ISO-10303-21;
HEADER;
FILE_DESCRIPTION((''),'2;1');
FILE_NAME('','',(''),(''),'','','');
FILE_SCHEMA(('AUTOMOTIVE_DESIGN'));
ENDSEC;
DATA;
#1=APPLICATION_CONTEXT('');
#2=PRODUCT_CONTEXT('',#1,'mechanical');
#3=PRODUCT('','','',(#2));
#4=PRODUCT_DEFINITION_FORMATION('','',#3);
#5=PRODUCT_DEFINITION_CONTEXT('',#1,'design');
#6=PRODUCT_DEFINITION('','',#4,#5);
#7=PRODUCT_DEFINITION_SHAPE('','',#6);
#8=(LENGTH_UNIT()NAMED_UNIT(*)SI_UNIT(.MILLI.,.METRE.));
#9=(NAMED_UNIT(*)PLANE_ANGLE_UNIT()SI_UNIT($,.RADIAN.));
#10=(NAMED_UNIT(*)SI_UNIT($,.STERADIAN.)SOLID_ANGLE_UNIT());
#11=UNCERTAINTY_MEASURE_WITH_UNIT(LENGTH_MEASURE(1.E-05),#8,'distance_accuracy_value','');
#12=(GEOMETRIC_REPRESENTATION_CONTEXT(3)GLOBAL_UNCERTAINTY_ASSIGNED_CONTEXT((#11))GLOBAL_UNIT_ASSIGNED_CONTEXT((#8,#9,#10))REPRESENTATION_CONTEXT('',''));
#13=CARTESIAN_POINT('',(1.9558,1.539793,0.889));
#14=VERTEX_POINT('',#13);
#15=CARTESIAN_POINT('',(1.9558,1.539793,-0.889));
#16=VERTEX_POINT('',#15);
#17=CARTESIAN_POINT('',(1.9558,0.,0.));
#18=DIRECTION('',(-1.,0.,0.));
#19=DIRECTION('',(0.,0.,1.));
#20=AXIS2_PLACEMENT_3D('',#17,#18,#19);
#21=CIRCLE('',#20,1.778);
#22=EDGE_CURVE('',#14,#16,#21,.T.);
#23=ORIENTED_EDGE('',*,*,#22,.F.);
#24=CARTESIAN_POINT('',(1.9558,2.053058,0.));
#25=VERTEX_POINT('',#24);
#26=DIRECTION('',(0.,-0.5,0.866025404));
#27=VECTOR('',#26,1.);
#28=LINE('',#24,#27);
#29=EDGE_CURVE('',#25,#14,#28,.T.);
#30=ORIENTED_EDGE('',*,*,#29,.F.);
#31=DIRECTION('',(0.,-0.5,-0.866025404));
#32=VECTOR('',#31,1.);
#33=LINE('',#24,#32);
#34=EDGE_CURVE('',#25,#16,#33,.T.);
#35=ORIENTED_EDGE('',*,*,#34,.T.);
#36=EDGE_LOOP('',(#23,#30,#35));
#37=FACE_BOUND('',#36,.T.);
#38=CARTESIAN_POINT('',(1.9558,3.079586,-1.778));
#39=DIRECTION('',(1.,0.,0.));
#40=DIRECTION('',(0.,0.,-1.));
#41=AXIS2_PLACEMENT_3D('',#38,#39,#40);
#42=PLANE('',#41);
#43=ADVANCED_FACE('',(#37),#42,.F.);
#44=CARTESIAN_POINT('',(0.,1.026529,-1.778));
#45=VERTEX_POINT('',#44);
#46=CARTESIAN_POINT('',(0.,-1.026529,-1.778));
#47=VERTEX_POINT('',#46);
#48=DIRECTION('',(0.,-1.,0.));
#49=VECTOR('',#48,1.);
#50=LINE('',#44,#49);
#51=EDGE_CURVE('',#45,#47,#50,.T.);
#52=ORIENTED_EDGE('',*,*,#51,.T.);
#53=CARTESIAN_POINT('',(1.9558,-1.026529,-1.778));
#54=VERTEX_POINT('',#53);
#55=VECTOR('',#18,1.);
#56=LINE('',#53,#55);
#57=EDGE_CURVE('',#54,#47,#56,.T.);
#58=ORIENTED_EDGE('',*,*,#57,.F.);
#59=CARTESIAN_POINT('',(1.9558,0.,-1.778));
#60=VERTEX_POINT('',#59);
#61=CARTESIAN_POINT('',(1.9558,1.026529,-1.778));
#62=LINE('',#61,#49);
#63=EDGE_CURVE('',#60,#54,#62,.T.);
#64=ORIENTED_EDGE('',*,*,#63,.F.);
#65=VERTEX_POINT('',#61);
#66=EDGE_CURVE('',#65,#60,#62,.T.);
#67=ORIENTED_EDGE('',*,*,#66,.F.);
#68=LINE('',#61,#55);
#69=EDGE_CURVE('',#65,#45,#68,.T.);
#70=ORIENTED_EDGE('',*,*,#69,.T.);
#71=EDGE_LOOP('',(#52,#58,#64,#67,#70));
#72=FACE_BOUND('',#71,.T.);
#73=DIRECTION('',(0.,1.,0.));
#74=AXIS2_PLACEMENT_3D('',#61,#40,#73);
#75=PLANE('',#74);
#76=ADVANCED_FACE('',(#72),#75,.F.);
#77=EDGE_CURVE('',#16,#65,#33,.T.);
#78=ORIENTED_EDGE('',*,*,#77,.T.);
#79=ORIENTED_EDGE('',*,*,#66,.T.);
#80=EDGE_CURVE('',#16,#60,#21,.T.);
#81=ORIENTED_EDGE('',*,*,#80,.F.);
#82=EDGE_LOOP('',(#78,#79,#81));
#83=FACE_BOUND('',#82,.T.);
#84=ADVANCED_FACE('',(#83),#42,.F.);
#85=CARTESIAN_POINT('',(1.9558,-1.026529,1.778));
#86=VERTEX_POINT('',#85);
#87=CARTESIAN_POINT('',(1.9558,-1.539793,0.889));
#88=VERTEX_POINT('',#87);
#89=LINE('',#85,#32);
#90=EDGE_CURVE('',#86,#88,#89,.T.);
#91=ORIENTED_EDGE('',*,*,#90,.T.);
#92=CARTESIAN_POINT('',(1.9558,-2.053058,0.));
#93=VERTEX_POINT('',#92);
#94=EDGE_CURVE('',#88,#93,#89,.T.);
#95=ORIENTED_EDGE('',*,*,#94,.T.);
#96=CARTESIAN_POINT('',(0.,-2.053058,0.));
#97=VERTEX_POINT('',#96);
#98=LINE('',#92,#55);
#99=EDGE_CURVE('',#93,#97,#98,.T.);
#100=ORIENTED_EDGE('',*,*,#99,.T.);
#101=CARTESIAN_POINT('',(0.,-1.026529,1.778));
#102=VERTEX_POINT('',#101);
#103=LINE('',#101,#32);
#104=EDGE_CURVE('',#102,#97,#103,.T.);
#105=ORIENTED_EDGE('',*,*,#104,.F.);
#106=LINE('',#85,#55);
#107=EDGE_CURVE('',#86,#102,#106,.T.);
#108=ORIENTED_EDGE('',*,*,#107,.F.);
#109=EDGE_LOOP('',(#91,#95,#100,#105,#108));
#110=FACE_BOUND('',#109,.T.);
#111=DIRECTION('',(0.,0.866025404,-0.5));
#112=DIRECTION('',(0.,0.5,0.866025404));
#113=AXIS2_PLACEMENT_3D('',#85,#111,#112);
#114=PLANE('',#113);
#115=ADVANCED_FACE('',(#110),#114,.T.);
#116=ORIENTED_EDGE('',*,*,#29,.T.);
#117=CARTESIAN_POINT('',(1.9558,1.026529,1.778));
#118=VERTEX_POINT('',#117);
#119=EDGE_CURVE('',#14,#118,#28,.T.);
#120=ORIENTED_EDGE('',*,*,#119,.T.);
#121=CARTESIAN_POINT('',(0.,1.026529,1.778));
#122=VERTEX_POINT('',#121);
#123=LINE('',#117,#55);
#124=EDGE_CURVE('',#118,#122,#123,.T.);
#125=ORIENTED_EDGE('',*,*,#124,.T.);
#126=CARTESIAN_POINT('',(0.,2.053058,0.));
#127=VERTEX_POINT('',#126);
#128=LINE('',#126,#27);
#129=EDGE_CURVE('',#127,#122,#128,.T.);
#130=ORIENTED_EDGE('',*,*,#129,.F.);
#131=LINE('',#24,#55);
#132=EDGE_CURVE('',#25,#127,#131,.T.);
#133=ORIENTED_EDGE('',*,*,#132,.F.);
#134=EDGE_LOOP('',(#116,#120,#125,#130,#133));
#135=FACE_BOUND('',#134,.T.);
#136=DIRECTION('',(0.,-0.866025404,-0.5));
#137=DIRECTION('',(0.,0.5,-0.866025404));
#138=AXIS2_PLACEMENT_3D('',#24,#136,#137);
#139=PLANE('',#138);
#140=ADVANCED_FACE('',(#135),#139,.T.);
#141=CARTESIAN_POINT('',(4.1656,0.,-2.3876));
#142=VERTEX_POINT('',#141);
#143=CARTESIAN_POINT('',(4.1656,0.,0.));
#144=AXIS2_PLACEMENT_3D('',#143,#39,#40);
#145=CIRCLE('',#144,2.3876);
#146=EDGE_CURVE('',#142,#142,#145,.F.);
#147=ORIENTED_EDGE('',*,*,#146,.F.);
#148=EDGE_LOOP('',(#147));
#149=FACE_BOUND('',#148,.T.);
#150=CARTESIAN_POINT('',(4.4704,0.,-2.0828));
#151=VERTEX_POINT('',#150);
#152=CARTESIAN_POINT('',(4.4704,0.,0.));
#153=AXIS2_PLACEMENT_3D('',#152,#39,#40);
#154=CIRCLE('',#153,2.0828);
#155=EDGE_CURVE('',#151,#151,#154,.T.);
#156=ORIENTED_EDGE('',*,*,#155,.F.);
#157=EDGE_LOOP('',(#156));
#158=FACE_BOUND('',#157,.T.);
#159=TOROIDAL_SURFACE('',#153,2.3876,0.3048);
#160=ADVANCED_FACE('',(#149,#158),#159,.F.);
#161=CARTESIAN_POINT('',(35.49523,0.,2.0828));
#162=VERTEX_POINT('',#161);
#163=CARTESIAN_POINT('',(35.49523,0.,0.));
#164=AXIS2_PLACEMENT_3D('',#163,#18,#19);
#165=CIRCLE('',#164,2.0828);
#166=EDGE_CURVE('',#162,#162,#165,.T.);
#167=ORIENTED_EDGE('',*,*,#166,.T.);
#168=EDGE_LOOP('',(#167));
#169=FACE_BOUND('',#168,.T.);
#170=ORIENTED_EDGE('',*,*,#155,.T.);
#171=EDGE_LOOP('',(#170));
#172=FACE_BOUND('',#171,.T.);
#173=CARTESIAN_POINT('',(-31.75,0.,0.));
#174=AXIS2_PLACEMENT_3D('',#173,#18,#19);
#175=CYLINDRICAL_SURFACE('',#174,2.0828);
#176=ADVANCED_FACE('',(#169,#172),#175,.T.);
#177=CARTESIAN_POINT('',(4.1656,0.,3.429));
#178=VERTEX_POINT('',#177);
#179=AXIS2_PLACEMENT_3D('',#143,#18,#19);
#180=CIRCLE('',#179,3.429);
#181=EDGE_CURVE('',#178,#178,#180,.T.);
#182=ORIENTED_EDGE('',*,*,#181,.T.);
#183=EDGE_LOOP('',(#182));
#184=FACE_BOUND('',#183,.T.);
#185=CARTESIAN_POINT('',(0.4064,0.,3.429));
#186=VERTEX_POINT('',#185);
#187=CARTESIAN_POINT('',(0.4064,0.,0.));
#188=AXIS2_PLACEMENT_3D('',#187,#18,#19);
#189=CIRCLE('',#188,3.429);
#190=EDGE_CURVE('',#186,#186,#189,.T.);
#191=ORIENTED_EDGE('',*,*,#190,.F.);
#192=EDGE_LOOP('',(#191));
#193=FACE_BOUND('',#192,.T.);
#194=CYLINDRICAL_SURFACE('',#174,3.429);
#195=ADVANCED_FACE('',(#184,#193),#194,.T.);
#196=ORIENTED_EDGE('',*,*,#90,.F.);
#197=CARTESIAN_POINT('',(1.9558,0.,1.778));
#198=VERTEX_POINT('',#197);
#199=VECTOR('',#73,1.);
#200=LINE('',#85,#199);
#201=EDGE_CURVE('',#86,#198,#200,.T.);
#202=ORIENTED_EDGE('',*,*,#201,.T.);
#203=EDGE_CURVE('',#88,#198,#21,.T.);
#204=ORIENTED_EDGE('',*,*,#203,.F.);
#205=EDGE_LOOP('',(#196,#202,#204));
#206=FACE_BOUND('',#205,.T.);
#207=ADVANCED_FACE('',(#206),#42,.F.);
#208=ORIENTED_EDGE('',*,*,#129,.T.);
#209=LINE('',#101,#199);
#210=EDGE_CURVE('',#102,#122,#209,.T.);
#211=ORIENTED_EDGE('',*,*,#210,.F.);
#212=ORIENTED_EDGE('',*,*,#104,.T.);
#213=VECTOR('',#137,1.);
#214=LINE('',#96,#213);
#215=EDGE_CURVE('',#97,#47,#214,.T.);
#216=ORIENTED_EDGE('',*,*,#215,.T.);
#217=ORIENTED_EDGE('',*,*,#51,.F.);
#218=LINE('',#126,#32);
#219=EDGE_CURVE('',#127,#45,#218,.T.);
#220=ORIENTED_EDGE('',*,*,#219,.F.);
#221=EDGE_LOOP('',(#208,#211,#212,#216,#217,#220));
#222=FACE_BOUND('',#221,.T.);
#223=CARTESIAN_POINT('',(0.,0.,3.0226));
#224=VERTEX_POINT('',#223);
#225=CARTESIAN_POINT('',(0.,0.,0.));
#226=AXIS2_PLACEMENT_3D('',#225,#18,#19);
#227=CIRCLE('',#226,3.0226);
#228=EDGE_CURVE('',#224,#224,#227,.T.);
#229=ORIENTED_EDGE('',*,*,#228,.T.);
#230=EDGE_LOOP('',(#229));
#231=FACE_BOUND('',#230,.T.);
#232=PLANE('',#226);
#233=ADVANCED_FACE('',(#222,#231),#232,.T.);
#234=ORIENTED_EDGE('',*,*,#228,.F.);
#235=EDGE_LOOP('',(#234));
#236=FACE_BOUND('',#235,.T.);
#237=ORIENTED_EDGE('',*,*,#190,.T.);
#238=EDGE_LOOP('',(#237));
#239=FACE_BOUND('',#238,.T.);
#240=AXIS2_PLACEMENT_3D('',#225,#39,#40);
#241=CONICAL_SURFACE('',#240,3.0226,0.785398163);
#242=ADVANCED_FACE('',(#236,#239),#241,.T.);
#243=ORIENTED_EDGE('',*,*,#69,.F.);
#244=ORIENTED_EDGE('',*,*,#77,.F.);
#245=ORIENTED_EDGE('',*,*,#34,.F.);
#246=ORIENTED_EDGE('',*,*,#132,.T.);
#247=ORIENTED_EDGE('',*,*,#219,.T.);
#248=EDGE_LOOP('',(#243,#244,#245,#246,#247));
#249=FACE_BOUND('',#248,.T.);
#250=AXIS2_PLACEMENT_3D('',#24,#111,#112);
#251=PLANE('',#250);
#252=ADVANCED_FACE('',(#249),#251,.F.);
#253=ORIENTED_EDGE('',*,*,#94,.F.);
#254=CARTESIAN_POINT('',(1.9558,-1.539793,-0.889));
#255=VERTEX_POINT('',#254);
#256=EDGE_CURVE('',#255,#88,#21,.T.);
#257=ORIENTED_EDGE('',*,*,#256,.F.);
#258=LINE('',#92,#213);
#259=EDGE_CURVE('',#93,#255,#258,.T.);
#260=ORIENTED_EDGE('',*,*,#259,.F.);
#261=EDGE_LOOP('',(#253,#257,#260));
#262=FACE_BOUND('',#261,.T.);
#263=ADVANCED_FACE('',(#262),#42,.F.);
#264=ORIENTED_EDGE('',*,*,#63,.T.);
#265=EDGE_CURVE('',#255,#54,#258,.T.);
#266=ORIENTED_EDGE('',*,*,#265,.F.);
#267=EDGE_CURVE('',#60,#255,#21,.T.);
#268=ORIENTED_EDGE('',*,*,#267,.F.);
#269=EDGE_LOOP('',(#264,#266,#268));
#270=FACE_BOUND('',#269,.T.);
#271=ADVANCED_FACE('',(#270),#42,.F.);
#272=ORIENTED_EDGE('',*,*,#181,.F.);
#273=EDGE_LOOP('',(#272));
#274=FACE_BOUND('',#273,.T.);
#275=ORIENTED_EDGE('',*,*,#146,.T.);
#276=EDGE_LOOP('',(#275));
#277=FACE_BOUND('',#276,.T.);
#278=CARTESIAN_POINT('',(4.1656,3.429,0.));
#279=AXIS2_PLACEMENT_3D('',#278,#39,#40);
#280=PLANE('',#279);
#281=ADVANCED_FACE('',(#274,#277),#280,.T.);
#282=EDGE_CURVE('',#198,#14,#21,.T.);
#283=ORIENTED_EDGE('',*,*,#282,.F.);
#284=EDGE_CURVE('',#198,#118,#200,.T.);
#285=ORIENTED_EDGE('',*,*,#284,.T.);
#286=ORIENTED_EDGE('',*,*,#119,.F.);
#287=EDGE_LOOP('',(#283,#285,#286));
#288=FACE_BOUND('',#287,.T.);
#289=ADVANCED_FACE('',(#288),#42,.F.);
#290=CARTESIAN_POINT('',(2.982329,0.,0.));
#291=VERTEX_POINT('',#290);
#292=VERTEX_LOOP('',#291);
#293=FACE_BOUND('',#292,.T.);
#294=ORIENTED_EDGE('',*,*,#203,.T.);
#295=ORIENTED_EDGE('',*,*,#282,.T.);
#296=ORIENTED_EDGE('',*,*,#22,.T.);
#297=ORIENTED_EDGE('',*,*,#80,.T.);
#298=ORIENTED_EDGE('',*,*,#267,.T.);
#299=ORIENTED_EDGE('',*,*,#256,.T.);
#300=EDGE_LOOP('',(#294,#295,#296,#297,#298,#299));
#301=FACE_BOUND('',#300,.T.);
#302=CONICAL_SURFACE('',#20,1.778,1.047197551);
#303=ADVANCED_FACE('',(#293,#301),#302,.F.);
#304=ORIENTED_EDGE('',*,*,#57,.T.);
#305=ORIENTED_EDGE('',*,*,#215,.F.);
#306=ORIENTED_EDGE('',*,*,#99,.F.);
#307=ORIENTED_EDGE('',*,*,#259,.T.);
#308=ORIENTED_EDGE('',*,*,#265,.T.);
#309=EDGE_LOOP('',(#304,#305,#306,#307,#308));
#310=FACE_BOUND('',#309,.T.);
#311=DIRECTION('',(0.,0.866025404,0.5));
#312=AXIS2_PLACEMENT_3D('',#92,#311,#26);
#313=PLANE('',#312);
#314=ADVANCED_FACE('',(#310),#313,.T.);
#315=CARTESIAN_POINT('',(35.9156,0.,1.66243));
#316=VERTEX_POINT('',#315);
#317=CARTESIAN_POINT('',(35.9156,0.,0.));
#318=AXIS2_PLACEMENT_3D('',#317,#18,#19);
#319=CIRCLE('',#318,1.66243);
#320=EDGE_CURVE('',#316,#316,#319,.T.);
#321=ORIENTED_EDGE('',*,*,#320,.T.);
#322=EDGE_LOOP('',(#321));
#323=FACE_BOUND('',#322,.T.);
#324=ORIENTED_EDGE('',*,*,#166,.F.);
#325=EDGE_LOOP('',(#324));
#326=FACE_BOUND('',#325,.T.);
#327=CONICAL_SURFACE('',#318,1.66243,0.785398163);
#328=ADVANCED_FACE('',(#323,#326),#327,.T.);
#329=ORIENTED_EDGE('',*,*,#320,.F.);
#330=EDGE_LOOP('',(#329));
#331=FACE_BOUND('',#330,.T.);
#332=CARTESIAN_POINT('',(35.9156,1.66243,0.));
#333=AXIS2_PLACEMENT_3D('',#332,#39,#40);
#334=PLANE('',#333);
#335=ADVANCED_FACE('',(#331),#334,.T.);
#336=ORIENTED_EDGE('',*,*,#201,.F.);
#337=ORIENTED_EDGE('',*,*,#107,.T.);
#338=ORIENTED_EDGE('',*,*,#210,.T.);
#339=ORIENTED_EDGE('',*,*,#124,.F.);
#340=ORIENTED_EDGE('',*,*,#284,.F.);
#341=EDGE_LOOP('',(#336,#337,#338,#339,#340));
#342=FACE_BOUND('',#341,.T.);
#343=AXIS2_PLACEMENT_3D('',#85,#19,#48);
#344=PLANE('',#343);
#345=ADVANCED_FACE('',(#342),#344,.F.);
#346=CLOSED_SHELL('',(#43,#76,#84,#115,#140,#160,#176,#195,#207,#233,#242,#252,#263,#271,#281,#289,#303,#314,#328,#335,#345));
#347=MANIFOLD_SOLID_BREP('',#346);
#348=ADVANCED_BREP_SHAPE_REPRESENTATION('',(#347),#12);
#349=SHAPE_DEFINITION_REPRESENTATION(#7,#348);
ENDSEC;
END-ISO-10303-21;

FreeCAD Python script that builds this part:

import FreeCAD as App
import Part
import Sketcher
Q = App.Units.Quantity


def edges_at(feature, points):
    """Names of the edges that pass closest to the given points."""
    edges = feature.Shape.Edges
    near = lambda p: min(range(len(edges)), key=lambda i: edges[i].distToShape(Part.Vertex(*p))[0])
    return sorted({f"Edge{near(p) + 1}" for p in points})


def add_polygon(sketch, points):
    """Adds a closed chain of lines whose ends are joined by coincident constraints."""
    first, n = sketch.GeometryCount, len(points)
    for a, b in zip(points, points[1:] + points[:1]):
        sketch.addGeometry(Part.LineSegment(App.Vector(*a, 0), App.Vector(*b, 0)), False)
    for i in range(n):
        sketch.addConstraint(Sketcher.Constraint("Coincident", first + i, 2, first + (i + 1) % n, 1))

doc = App.newDocument("Part")
params = doc.addObject("Spreadsheet::Sheet", "Params")
for row, (alias, value) in enumerate([
    ("sketch1_width", "1.414 in"),
    ("sketch1_width2", "0.148 in"),
    ("sketch1_height", "0.119 in"),
    ("sketch1_height2", "0.053 in"),
    ("revolution_angle", "360 deg"),
    ("fillet_radius", "0.012 in"),
    ("sketch2_height", "0.07 in"),
    ("sketch2_width", "0.077 in"),
    ("groove_angle", "360 deg"),
    ("pocket1_length", "0.077 in"),
], start=1):
    params.set(f"A{row}", alias)
    params.set(f"B{row}", "=" + value)
    params.setAlias(f"B{row}", alias)

body = doc.addObject("PartDesign::Body", "Body")

sketch1 = doc.addObject("Sketcher::SketchObject", "Sketch")
body.addObject(sketch1)
sketch1.AttachmentSupport = (doc.XY_Plane, [""])
sketch1.MapMode = "FlatFace"
add_polygon(sketch1, [(0, 3), (0, 0), (35.9, 0), (35.9, 1.7), (35.5, 2.1), (4.2, 2.1), (4.2, 3.4), (0.4, 3.4)])
sketch1.addConstraint(Sketcher.Constraint("Vertical", 0))
sketch1.addConstraint(Sketcher.Constraint("Horizontal", 1))
sketch1.addConstraint(Sketcher.Constraint("Vertical", 2))
sketch1.addConstraint(Sketcher.Constraint("Horizontal", 4))
sketch1.addConstraint(Sketcher.Constraint("Vertical", 5))
sketch1.addConstraint(Sketcher.Constraint("Horizontal", 6))
sketch1.addConstraint(Sketcher.Constraint("Coincident", 0, 2, -1, 1))
sketch1.addConstraint(Sketcher.Constraint("Perpendicular", 3, 7))
sketch1.addConstraint(Sketcher.Constraint("Angle", 3, Q("135 deg")))
sketch1.addConstraint(Sketcher.Constraint("DistanceX", 1, 1, 1, 2, Q("1.414 in")))
sketch1.addConstraint(Sketcher.Constraint("DistanceX", 6, 2, 6, 1, Q("0.148 in")))
sketch1.addConstraint(Sketcher.Constraint("DistanceY", 0, 2, 0, 1, Q("0.119 in")))
sketch1.addConstraint(Sketcher.Constraint("DistanceY", 5, 1, 5, 2, Q("0.053 in")))
sketch1.addConstraint(Sketcher.Constraint("DistanceX", 4, 2, 2, 2, Q("1.25 in")))
sketch1.addConstraint(Sketcher.Constraint("DistanceX", 4, 2, 4, 1, Q("31.32963 mm")))
sketch1.setExpression("Constraints[17]", "Params.sketch1_width")
sketch1.setExpression("Constraints[18]", "Params.sketch1_width2")
sketch1.setExpression("Constraints[19]", "Params.sketch1_height")
sketch1.setExpression("Constraints[20]", "Params.sketch1_height2")
revolution = doc.addObject("PartDesign::Revolution", "Revolution")
body.addObject(revolution)
revolution.Profile = sketch1
revolution.ReferenceAxis = (sketch1, ["H_Axis"])
revolution.setExpression("Angle", "Params.revolution_angle")
doc.recompute()

fillet = doc.addObject("PartDesign::Fillet", "Fillet")
body.addObject(fillet)
fillet.Base = (revolution, edges_at(revolution, [(4.166, 0, -2.083)]))
fillet.setExpression("Radius", "Params.fillet_radius")

sketch2 = doc.addObject("Sketcher::SketchObject", "Sketch001")
body.addObject(sketch2)
sketch2.AttachmentSupport = (doc.XY_Plane, [""])
sketch2.MapMode = "FlatFace"
add_polygon(sketch2, [(2, 1.8), (0, 1.8), (0, 0), (3, 0)])
sketch2.addConstraint(Sketcher.Constraint("Horizontal", 0))
sketch2.addConstraint(Sketcher.Constraint("Vertical", 1))
sketch2.addConstraint(Sketcher.Constraint("Horizontal", 2))
sketch2.addConstraint(Sketcher.Constraint("Coincident", 1, 2, -1, 1))
sketch2.addConstraint(Sketcher.Constraint("Angle", 3, Q("120 deg")))
sketch2.addConstraint(Sketcher.Constraint("DistanceY", 1, 2, 1, 1, Q("0.07 in")))
sketch2.addConstraint(Sketcher.Constraint("DistanceX", 0, 2, 0, 1, Q("0.077 in")))
sketch2.setExpression("Constraints[9]", "Params.sketch2_height")
sketch2.setExpression("Constraints[10]", "Params.sketch2_width")
groove = doc.addObject("PartDesign::Groove", "Groove")
body.addObject(groove)
groove.Profile = sketch2
groove.ReferenceAxis = (sketch2, ["H_Axis"])
groove.setExpression("Angle", "Params.groove_angle")

sketch3 = doc.addObject("Sketcher::SketchObject", "Sketch002")
body.addObject(sketch3)
sketch3.AttachmentSupport = (doc.YZ_Plane, [""])
sketch3.MapMode = "FlatFace"
add_polygon(sketch3, [(2.1, 0), (1, -1.8), (-1, -1.8), (-2.1, 0), (-1, 1.8), (1, 1.8)])
sketch3.addConstraint(Sketcher.Constraint("Horizontal", 1))
sketch3.addConstraint(Sketcher.Constraint("Horizontal", 4))
sketch3.addConstraint(Sketcher.Constraint("Symmetric", 0, 2, 3, 2, -1, 1))
sketch3.addConstraint(Sketcher.Constraint("Symmetric", 2, 2, 5, 2, -1, 1))
sketch3.addConstraint(Sketcher.Constraint("PointOnObject", 2, 2, -1))
sketch3.addConstraint(Sketcher.Constraint("Parallel", 2, 5))
sketch3.addConstraint(Sketcher.Constraint("Vertical", 1, 2, 3, 2))
sketch3.addConstraint(Sketcher.Constraint("Angle", 0, Q("-120 deg")))
sketch3.addConstraint(Sketcher.Constraint("DistanceY", 0, 2, -1, 1, Q("0.07 in")))
sketch3.addConstraint(Sketcher.Constraint("DistanceX", 1, 2, 1, 1, Q("2.053058 mm")))
pocket1 = doc.addObject("PartDesign::Pocket", "Pocket")
body.addObject(pocket1)
pocket1.Profile = sketch3
pocket1.setExpression("Length", "Params.pocket1_length")
pocket1.Reversed = True

doc.recompute()
